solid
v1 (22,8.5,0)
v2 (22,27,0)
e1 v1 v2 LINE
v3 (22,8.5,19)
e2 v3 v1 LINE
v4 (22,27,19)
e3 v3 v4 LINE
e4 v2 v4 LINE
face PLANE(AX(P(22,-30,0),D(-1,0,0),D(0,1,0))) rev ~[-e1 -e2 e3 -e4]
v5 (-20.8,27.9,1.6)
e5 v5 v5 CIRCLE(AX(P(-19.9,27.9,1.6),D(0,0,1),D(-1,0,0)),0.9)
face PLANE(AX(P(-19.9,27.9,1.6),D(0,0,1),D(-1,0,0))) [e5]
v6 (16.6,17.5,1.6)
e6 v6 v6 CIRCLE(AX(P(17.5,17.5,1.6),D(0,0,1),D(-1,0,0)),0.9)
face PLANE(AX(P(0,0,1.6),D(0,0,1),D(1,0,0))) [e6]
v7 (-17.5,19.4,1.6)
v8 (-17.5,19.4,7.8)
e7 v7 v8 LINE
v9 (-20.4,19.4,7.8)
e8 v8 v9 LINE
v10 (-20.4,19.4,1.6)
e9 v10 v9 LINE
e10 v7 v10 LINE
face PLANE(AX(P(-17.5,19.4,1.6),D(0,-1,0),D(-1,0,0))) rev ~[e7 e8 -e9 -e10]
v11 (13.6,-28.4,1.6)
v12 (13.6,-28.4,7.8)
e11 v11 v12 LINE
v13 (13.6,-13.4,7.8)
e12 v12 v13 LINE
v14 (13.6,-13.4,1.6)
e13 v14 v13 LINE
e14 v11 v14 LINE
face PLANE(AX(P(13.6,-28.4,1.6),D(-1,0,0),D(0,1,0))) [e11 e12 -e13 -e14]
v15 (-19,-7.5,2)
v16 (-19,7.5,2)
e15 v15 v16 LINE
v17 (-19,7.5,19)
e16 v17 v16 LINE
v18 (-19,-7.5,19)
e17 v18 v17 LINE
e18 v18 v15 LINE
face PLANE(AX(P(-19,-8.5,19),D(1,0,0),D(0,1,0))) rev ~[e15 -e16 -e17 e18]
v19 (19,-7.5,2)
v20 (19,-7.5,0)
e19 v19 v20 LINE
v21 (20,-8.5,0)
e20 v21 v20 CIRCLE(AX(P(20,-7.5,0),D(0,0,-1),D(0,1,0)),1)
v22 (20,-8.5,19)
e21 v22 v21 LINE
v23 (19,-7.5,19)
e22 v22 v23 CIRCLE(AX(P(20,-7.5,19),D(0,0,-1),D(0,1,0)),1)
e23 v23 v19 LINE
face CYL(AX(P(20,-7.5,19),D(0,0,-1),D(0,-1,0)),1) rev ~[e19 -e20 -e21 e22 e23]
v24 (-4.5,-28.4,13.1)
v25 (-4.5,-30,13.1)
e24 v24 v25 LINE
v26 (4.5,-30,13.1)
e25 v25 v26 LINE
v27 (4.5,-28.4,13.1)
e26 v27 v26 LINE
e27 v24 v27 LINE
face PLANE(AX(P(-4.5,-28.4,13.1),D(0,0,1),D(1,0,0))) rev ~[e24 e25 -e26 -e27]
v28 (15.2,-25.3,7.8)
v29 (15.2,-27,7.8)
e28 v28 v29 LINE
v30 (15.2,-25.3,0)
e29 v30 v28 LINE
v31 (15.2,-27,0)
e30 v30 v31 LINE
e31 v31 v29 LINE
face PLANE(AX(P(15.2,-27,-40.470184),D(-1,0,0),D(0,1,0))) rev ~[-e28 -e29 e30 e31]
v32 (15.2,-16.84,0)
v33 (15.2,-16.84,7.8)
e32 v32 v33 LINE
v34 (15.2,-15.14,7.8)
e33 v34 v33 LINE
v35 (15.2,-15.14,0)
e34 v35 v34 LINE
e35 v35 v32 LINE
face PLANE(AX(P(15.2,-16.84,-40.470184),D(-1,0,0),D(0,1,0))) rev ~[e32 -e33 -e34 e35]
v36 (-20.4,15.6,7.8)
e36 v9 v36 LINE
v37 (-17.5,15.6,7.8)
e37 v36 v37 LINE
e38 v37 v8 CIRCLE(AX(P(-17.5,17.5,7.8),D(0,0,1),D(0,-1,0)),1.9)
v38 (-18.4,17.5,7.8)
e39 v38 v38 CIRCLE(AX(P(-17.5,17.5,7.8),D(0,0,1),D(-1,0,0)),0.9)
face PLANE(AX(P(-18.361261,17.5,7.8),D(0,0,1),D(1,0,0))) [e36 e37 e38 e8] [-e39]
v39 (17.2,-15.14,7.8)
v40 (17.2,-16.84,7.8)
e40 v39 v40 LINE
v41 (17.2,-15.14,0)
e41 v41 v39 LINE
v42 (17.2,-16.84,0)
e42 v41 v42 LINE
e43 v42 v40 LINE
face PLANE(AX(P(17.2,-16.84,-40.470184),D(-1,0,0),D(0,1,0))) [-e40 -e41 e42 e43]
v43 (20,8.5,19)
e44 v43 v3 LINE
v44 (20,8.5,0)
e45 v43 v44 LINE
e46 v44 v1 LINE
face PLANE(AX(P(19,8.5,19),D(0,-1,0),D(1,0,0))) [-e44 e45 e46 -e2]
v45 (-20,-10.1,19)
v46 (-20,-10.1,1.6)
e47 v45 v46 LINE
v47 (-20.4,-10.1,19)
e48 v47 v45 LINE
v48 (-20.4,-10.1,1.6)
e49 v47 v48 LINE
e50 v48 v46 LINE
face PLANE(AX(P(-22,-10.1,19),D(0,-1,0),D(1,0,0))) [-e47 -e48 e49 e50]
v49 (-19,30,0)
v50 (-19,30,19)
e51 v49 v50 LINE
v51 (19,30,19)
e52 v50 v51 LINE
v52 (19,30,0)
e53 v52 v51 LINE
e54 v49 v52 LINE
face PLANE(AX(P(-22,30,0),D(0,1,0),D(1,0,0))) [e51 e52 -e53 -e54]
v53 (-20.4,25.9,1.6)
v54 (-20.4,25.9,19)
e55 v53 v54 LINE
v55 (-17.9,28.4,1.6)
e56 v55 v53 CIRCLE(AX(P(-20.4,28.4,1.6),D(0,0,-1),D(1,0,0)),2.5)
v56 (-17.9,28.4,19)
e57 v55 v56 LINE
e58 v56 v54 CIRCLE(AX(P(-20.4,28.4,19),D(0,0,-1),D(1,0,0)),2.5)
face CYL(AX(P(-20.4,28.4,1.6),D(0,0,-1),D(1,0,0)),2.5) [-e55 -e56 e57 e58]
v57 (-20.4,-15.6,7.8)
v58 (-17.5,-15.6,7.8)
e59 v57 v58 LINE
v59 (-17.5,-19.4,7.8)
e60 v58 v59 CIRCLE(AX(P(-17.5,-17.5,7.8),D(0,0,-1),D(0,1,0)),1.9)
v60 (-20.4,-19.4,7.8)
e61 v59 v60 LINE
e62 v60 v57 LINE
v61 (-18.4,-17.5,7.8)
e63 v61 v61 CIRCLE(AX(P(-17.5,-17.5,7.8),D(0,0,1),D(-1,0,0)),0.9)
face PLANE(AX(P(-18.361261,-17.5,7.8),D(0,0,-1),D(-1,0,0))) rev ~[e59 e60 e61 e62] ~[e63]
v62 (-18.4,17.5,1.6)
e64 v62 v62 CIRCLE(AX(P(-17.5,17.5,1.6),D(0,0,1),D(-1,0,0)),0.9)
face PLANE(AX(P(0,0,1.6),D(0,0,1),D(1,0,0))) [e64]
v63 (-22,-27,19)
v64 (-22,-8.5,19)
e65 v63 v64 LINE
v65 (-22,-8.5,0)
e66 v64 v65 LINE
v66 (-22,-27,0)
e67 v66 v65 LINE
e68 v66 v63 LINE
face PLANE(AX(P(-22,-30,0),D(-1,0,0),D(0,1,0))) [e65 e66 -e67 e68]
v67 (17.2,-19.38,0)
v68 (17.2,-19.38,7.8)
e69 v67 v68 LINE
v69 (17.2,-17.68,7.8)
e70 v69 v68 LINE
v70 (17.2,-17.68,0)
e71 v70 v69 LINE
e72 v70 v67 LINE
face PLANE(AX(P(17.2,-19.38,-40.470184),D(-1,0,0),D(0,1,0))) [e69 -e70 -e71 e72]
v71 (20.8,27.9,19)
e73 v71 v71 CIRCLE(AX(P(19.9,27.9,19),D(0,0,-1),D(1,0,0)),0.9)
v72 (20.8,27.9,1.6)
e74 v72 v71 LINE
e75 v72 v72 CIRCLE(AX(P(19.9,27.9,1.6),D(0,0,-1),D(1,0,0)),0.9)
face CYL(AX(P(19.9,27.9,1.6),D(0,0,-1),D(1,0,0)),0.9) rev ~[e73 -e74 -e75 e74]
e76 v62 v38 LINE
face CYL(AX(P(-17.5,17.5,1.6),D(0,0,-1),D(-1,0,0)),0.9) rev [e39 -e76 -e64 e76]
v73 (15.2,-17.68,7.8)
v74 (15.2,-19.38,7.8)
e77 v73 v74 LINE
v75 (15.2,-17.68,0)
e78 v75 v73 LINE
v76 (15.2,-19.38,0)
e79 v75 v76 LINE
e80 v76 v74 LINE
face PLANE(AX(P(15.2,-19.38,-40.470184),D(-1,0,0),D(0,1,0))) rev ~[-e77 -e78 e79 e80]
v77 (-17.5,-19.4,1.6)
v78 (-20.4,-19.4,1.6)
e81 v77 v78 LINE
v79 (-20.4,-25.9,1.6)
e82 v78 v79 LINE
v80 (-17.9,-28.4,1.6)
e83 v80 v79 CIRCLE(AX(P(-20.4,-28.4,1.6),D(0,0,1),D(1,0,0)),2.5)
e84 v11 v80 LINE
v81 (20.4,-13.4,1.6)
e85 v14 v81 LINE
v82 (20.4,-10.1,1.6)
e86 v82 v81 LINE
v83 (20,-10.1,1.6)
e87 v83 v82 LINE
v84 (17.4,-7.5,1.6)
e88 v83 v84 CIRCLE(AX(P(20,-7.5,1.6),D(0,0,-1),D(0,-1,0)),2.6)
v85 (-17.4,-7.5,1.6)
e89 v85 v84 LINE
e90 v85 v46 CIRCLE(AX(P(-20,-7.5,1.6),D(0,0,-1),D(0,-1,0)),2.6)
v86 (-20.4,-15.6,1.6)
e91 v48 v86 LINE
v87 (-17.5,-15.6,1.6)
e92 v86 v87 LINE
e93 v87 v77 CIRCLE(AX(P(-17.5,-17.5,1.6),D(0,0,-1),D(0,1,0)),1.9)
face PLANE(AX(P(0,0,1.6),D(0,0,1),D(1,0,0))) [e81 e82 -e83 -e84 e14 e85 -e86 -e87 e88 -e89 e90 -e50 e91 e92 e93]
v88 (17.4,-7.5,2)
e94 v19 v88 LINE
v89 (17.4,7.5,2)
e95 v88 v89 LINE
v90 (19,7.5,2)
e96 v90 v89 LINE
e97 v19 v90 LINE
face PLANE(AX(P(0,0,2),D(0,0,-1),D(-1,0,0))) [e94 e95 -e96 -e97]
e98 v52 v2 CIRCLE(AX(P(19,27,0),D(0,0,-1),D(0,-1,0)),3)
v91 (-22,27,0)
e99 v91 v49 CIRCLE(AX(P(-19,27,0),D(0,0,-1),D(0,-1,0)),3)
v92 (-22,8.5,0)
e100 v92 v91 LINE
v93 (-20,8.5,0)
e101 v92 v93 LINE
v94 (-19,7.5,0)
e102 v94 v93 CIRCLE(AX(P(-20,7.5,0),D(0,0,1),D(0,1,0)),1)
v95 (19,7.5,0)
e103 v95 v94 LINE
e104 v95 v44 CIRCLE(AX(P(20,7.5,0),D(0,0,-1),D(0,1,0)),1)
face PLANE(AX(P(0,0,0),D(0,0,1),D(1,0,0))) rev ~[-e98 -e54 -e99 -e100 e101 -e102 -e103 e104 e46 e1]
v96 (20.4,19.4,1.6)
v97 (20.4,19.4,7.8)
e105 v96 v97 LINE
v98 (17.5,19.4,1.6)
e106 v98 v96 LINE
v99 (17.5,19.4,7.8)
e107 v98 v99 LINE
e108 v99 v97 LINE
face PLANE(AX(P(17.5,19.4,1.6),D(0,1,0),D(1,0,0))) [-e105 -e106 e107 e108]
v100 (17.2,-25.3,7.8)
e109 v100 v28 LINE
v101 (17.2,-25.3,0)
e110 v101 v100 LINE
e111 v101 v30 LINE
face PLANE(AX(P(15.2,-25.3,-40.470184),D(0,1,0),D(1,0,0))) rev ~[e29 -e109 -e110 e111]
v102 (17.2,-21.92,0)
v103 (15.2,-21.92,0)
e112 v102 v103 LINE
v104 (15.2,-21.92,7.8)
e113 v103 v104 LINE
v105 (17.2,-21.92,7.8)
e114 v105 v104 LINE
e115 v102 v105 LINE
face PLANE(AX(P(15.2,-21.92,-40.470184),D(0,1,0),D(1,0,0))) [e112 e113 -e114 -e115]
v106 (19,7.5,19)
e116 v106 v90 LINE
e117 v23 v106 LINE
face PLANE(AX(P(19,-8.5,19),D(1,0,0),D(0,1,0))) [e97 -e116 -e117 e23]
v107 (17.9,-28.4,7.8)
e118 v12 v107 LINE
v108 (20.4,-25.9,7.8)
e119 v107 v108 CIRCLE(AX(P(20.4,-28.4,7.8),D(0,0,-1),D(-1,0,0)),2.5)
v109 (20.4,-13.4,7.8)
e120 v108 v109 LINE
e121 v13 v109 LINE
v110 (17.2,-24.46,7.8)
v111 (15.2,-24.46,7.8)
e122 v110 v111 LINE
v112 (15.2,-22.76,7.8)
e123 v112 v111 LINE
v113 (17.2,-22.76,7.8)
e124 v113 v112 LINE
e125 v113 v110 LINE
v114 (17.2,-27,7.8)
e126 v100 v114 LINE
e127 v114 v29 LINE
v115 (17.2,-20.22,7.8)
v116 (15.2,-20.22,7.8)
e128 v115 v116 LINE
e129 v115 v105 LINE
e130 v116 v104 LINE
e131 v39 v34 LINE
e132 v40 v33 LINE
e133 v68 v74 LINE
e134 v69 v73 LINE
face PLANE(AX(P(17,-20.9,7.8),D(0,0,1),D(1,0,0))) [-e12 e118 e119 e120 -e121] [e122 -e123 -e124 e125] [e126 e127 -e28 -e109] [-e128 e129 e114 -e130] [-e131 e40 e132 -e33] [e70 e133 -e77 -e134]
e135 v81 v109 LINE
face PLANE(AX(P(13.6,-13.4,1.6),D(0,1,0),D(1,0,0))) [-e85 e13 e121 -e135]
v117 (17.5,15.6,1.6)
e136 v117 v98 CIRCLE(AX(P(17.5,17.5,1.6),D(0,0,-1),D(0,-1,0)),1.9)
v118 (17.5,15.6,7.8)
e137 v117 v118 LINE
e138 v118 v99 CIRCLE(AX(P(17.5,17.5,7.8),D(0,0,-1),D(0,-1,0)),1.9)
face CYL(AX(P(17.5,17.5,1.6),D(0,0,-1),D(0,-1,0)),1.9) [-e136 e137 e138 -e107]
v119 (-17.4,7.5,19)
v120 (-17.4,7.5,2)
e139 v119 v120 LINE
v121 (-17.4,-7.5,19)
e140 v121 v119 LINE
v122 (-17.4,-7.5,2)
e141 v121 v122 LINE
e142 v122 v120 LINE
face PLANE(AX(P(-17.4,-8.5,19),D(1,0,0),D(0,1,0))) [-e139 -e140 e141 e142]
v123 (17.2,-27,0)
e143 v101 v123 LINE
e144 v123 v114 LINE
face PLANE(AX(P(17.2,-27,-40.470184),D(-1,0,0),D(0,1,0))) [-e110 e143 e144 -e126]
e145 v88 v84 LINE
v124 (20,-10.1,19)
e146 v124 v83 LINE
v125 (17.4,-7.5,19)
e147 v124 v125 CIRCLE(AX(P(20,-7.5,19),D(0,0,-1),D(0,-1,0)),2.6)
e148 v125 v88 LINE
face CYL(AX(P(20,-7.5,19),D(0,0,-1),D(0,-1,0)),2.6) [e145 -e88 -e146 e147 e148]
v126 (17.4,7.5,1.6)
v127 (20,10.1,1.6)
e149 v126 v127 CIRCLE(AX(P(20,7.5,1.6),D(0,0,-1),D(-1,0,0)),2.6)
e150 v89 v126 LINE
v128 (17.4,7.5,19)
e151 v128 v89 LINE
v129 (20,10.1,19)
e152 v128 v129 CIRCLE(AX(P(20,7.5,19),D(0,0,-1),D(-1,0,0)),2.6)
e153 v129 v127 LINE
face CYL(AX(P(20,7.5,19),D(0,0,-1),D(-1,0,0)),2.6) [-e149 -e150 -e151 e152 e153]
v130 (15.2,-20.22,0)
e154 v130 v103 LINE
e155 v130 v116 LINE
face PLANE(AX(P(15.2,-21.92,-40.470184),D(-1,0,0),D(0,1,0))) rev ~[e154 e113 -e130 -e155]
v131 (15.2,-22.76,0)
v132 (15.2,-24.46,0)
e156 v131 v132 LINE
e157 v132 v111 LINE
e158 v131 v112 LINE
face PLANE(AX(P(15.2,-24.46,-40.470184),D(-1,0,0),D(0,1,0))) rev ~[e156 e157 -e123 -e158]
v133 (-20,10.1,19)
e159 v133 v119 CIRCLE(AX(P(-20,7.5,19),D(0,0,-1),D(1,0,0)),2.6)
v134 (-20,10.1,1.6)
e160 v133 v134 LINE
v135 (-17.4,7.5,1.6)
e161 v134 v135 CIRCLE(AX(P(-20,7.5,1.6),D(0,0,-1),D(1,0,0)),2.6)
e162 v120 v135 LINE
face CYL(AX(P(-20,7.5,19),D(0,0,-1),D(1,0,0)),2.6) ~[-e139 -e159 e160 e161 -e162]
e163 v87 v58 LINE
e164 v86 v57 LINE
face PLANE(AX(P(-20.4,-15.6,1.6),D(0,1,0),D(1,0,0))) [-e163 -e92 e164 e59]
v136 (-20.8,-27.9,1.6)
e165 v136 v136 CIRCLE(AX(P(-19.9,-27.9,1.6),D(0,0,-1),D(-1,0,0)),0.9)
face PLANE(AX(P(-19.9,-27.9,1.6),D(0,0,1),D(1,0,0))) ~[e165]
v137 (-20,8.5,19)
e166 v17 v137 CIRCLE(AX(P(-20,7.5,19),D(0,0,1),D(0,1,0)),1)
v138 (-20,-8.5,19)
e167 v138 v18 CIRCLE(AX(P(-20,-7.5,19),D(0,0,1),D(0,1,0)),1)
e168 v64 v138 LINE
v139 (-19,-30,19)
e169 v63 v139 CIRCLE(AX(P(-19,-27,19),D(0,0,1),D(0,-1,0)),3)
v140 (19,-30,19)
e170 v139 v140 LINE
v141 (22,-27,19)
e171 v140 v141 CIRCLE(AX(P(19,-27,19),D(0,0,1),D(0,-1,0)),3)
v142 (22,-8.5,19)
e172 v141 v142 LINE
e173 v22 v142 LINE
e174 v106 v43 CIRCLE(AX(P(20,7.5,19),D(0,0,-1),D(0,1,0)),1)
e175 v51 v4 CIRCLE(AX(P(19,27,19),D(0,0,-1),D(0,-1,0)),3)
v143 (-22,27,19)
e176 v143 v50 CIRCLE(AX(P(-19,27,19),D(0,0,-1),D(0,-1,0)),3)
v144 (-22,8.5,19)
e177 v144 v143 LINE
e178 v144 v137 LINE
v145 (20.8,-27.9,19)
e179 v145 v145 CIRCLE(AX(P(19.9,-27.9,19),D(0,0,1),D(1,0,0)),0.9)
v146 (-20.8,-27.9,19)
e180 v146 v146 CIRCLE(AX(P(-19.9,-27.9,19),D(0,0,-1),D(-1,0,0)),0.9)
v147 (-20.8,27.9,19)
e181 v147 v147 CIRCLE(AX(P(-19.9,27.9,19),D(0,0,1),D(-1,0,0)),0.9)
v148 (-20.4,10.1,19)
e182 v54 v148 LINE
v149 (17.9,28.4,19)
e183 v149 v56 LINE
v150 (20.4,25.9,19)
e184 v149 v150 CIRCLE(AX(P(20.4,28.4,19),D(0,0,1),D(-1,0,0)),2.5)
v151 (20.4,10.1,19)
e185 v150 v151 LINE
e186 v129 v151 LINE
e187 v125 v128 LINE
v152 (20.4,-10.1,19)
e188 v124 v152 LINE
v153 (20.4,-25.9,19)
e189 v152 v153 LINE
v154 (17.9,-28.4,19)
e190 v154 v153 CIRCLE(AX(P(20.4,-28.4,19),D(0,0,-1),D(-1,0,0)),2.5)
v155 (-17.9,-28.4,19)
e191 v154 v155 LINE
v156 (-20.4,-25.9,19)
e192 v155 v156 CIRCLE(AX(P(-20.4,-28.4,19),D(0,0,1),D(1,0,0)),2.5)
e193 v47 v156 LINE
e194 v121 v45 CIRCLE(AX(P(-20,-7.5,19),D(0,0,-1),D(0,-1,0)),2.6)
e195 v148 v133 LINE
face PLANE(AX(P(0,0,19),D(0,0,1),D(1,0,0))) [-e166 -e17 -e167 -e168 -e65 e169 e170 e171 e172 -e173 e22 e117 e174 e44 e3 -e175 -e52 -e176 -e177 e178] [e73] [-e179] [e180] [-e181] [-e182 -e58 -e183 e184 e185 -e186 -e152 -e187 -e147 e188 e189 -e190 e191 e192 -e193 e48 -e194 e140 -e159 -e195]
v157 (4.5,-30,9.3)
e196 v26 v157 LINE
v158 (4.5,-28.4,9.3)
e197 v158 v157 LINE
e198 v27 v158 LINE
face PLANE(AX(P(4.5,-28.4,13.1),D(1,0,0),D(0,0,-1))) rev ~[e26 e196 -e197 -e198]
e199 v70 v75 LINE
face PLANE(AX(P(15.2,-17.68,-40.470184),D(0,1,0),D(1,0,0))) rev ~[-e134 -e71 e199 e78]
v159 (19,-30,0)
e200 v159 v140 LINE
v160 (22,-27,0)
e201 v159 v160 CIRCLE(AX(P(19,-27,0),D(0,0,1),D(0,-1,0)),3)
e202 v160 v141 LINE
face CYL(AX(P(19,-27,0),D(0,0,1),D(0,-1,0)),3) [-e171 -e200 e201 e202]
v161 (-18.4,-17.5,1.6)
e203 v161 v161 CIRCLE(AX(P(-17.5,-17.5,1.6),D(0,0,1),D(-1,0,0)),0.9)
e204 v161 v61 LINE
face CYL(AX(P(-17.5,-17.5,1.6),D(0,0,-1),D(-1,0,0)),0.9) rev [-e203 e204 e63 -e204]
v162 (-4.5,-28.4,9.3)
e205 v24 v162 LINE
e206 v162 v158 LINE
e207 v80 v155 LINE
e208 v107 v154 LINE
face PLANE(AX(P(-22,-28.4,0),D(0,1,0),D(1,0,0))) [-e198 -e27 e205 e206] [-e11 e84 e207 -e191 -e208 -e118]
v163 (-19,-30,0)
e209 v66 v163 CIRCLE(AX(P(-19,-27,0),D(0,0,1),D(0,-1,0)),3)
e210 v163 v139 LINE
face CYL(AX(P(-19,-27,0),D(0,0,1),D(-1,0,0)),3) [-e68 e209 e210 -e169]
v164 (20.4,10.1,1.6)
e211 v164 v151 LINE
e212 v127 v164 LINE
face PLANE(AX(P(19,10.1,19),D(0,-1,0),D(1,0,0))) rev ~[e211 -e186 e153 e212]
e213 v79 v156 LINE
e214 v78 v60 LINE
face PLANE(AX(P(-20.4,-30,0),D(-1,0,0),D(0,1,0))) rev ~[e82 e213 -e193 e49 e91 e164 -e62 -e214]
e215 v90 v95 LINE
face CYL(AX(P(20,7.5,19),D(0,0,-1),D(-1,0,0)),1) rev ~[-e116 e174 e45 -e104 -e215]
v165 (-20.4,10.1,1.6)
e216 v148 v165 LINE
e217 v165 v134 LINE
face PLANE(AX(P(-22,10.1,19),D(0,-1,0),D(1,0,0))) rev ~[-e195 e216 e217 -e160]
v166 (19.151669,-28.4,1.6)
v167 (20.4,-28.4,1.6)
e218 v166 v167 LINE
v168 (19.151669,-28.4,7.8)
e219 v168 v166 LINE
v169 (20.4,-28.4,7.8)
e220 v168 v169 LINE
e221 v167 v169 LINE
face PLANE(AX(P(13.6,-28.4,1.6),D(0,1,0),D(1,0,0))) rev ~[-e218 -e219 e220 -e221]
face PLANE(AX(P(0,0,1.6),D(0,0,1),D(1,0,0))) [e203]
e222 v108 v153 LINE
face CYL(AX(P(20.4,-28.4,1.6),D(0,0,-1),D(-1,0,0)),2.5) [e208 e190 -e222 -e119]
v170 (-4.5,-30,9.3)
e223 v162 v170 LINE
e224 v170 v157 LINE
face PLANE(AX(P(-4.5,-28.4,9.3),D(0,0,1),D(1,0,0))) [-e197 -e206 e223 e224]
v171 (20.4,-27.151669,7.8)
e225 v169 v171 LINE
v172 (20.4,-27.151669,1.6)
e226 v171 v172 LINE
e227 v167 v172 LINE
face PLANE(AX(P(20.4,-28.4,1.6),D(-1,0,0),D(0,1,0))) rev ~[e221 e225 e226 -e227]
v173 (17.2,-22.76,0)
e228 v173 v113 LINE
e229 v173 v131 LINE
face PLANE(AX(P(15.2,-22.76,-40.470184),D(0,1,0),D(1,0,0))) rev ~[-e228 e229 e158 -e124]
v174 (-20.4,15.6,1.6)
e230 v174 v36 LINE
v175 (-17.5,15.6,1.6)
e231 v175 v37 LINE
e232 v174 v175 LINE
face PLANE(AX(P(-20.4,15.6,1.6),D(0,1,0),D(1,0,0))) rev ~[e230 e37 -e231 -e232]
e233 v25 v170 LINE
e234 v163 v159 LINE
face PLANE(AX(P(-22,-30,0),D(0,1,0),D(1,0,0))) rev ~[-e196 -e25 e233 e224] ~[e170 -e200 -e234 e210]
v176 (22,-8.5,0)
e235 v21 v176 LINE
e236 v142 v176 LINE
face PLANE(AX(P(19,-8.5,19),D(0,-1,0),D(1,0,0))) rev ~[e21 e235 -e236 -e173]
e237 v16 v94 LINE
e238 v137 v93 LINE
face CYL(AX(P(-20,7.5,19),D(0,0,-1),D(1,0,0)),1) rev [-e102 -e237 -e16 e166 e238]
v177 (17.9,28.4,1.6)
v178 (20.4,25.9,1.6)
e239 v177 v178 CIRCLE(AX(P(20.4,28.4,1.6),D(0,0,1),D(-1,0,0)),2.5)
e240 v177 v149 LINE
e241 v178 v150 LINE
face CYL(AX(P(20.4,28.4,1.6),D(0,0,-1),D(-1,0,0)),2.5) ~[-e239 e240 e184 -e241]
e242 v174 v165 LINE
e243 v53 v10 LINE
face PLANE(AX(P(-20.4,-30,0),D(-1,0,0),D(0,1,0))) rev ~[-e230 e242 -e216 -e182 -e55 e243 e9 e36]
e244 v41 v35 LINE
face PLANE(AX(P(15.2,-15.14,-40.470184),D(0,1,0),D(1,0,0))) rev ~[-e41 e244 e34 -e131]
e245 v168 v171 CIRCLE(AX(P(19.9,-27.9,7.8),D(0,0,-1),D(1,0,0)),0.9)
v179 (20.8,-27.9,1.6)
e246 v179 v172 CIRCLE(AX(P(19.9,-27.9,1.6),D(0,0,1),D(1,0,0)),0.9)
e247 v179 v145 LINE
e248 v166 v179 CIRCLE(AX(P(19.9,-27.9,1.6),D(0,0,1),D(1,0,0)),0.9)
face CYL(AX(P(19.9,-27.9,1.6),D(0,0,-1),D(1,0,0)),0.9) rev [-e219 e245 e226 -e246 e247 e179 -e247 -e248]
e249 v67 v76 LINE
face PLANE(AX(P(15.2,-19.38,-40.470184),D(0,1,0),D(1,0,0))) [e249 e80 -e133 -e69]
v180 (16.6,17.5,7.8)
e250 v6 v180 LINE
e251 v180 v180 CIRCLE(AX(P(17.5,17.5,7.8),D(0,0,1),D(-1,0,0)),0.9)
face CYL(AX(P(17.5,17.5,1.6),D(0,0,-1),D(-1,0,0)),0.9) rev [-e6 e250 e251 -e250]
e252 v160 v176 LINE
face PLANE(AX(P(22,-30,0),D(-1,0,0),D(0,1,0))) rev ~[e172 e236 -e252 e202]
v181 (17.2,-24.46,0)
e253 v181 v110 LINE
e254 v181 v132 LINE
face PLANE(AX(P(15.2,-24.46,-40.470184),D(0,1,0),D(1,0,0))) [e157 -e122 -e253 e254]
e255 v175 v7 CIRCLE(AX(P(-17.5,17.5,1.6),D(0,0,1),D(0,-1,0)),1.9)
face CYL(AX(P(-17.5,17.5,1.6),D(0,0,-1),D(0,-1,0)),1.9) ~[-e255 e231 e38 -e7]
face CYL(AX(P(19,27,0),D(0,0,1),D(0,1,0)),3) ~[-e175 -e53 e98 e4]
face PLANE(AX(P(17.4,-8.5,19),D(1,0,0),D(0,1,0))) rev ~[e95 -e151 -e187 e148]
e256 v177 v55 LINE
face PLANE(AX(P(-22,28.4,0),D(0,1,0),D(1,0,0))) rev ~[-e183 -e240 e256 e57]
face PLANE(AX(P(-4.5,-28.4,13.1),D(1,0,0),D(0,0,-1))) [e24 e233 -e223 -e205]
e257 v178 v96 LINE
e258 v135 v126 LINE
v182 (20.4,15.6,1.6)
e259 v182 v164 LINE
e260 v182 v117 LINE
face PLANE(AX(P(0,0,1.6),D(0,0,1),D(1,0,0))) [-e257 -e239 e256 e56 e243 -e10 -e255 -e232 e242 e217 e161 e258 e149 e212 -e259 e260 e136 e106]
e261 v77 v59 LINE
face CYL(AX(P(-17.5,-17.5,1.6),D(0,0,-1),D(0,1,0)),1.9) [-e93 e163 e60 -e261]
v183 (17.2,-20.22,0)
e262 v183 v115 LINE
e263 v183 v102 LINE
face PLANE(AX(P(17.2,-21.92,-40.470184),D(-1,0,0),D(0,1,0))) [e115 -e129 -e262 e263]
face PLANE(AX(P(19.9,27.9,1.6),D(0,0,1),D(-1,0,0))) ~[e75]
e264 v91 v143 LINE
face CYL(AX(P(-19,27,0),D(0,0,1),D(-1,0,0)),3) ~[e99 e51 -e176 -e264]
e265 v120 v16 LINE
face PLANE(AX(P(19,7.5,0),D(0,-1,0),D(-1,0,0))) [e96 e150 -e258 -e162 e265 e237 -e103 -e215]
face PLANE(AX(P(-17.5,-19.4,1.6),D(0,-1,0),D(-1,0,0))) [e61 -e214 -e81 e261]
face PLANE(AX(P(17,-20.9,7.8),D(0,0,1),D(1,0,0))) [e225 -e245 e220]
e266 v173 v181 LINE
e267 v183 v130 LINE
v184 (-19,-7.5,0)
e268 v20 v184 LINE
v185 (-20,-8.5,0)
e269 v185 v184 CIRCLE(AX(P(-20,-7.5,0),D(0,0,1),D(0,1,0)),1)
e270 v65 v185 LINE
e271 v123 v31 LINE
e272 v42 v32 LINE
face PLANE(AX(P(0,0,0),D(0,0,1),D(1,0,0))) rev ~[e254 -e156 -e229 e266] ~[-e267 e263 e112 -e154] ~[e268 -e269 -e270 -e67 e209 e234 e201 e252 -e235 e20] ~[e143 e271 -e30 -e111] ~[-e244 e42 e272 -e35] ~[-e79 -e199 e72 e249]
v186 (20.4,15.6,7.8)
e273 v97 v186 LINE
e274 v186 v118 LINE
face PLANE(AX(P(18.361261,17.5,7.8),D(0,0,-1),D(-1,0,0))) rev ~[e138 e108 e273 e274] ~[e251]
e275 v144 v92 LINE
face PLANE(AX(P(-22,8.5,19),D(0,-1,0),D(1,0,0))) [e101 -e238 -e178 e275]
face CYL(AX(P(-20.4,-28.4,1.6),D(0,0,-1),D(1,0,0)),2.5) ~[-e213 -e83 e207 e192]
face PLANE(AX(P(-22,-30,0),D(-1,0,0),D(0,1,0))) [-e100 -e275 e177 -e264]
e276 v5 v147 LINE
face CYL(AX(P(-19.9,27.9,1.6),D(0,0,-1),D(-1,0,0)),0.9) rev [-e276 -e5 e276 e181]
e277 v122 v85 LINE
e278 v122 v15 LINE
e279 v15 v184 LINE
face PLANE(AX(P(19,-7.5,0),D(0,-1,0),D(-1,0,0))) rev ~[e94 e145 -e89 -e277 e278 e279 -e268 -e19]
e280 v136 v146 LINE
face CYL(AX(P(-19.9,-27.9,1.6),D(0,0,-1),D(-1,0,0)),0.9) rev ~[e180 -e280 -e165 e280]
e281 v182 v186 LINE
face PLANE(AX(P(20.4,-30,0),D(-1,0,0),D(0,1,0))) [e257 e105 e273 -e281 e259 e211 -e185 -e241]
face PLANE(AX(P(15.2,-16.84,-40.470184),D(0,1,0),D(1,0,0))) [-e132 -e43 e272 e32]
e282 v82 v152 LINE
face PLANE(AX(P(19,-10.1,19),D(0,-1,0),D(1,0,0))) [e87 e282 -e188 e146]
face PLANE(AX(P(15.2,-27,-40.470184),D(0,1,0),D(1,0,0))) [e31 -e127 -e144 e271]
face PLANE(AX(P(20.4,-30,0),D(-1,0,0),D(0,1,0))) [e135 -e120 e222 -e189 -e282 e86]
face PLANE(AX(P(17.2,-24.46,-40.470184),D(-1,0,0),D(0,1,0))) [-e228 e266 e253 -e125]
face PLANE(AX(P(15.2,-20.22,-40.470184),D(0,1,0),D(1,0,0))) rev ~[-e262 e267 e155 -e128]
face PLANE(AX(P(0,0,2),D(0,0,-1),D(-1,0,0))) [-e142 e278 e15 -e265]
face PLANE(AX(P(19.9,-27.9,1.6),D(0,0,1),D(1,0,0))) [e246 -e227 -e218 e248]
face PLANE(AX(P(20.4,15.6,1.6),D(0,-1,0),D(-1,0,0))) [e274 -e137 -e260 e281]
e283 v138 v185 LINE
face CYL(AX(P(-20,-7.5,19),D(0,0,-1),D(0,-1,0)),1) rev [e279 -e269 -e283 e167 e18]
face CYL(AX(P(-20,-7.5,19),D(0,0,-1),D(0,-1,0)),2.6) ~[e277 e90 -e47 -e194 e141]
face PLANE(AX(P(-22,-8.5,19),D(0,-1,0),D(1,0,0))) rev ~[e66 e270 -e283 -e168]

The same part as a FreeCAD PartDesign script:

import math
import FreeCAD as App
import Part
import Sketcher

V = App.Vector
Q = App.Units.Quantity


def edges_at(feature, points):
    """Names of the edges that pass closest to the given points."""
    edges = feature.Shape.Edges
    near = lambda p: min(range(len(edges)), key=lambda i: edges[i].distToShape(Part.Vertex(*p))[0])
    return sorted({f"Edge{near(p) + 1}" for p in points})


def faces_at(feature, points):
    """Names of the faces that lie closest to the given points."""
    faces = feature.Shape.Faces
    near = lambda p: min(range(len(faces)), key=lambda i: faces[i].distToShape(Part.Vertex(*p))[0])
    return sorted({f"Face{near(p) + 1}" for p in points})

doc = App.newDocument("Part")
body = doc.addObject("PartDesign::Body", "Body")

sketch1 = body.newObject("Sketcher::SketchObject", "Sketch")
sketch1.AttachmentSupport = (doc.getObject("XY_Plane"), [""])
sketch1.MapMode = "FlatFace"
sketch1.addGeometry(Part.LineSegment(V(-22, 30, 0), V(-22, -30, 0)), False)
sketch1.addGeometry(Part.LineSegment(V(-22, -30, 0), V(22, -30, 0)), False)
sketch1.addGeometry(Part.LineSegment(V(22, -30, 0), V(22, 30, 0)), False)
sketch1.addGeometry(Part.LineSegment(V(22, 30, 0), V(-22, 30, 0)), False)
sketch1.addConstraint(Sketcher.Constraint("Coincident", 0, 2, 1, 1))
sketch1.addConstraint(Sketcher.Constraint("Coincident", 1, 2, 2, 1))
sketch1.addConstraint(Sketcher.Constraint("Coincident", 2, 2, 3, 1))
sketch1.addConstraint(Sketcher.Constraint("Coincident", 3, 2, 0, 1))
sketch1.addConstraint(Sketcher.Constraint("Vertical", 0))
sketch1.addConstraint(Sketcher.Constraint("Horizontal", 1))
sketch1.addConstraint(Sketcher.Constraint("Vertical", 2))
sketch1.addConstraint(Sketcher.Constraint("Horizontal", 3))
sketch1.addConstraint(Sketcher.Constraint("Symmetric", 0, 2, 2, 2, -1, 1))
sketch1.addConstraint(Sketcher.Constraint("DistanceX", 1, 1, 1, 2, Q("44 mm")))
sketch1.addConstraint(Sketcher.Constraint("DistanceY", 0, 2, 0, 1, Q("60 mm")))
pad1 = body.newObject("PartDesign::Pad", "Pad")
pad1.Profile = sketch1
pad1.Length = 19

sketch2 = body.newObject("Sketcher::SketchObject", "Sketch001")
sketch2.AttachmentSupport = (doc.getObject("XY_Plane"), [""])
sketch2.MapMode = "FlatFace"
sketch2.AttachmentOffset = App.Placement(V(0, 0, 19), App.Rotation())
sketch2.addGeometry(Part.LineSegment(V(-22, 8.5, 0), V(-22, -8.5, 0)), False)
sketch2.addGeometry(Part.LineSegment(V(-22, -8.5, 0), V(-19, -8.5, 0)), False)
sketch2.addGeometry(Part.LineSegment(V(-19, -8.5, 0), V(-19, 8.5, 0)), False)
sketch2.addGeometry(Part.LineSegment(V(-19, 8.5, 0), V(-22, 8.5, 0)), False)
sketch2.addGeometry(Part.LineSegment(V(19, 8.5, 0), V(19, -8.5, 0)), False)
sketch2.addGeometry(Part.LineSegment(V(19, -8.5, 0), V(22, -8.5, 0)), False)
sketch2.addGeometry(Part.LineSegment(V(22, -8.5, 0), V(22, 8.5, 0)), False)
sketch2.addGeometry(Part.LineSegment(V(22, 8.5, 0), V(19, 8.5, 0)), False)
sketch2.addConstraint(Sketcher.Constraint("Coincident", 0, 2, 1, 1))
sketch2.addConstraint(Sketcher.Constraint("Coincident", 1, 2, 2, 1))
sketch2.addConstraint(Sketcher.Constraint("Coincident", 2, 2, 3, 1))
sketch2.addConstraint(Sketcher.Constraint("Coincident", 3, 2, 0, 1))
sketch2.addConstraint(Sketcher.Constraint("Coincident", 4, 2, 5, 1))
sketch2.addConstraint(Sketcher.Constraint("Coincident", 5, 2, 6, 1))
sketch2.addConstraint(Sketcher.Constraint("Coincident", 6, 2, 7, 1))
sketch2.addConstraint(Sketcher.Constraint("Coincident", 7, 2, 4, 1))
sketch2.addConstraint(Sketcher.Constraint("Vertical", 0))
sketch2.addConstraint(Sketcher.Constraint("Horizontal", 1))
sketch2.addConstraint(Sketcher.Constraint("Vertical", 2))
sketch2.addConstraint(Sketcher.Constraint("Horizontal", 3))
sketch2.addConstraint(Sketcher.Constraint("Vertical", 4))
sketch2.addConstraint(Sketcher.Constraint("Horizontal", 5))
sketch2.addConstraint(Sketcher.Constraint("Vertical", 6))
sketch2.addConstraint(Sketcher.Constraint("Horizontal", 7))
sketch2.addConstraint(Sketcher.Constraint("Symmetric", 2, 2, 4, 2, -1, 1))
sketch2.addConstraint(Sketcher.Constraint("Symmetric", 0, 2, 6, 2, -1, 1))
sketch2.addConstraint(Sketcher.Constraint("Horizontal", 1, 2, 4, 2))
sketch2.addConstraint(Sketcher.Constraint("DistanceX", 1, 1, 1, 2, Q("3 mm")))
sketch2.addConstraint(Sketcher.Constraint("DistanceY", 0, 2, 0, 1, Q("17 mm")))
sketch2.addConstraint(Sketcher.Constraint("DistanceX", 0, 2, -1, 1, Q("22 mm")))
pocket1 = body.newObject("PartDesign::Pocket", "Pocket")
pocket1.Profile = sketch2
pocket1.Type = "ThroughAll"
doc.recompute()

fillet = body.newObject("PartDesign::Fillet", "Fillet")
fillet.Base = (pocket1, edges_at(pocket1, [
    (22, -30, 9.5),
    (-22, -30, 9.5),
    (-22, 30, 9.5),
    (22, 30, 9.5),
]))
fillet.Radius = 3
doc.recompute()

fillet2 = body.newObject("PartDesign::Fillet", "Fillet001")
fillet2.Base = (fillet, edges_at(fillet, [
    (-19, 8.5, 9.5),
    (-19, -8.5, 9.5),
    (19, -8.5, 9.5),
    (19, 8.5, 9.5),
]))
fillet2.Radius = 1
doc.recompute()

thickness = body.newObject("PartDesign::Thickness", "Thickness")
thickness.Base = (fillet2, faces_at(fillet2, [(0, 0, 19)]))
thickness.Value = 1.6
thickness.Reversed = True
thickness.Join = "Intersection"

sketch3 = body.newObject("Sketcher::SketchObject", "Sketch002")
sketch3.AttachmentSupport = (doc.getObject("XY_Plane"), [""])
sketch3.MapMode = "FlatFace"
sketch3.AttachmentOffset = App.Placement(V(0, 0, 1.6), App.Rotation())
sketch3.addGeometry(Part.LineSegment(V(-17.9, 28.4, 0), V(-20.4, 28.4, 0)), False)
sketch3.addGeometry(Part.LineSegment(V(-20.4, 28.4, 0), V(-20.4, 25.9, 0)), False)
sketch3.addGeometry(Part.ArcOfCircle(Part.Circle(V(-20.4, 28.4, 0), V(0, 0, 1), 2.5), math.radians(-90), math.radians(0)), False)
sketch3.addConstraint(Sketcher.Constraint("Coincident", 0, 2, 1, 1))
sketch3.addConstraint(Sketcher.Constraint("Coincident", 1, 2, 2, 1))
sketch3.addConstraint(Sketcher.Constraint("Coincident", 2, 2, 0, 1))
sketch3.addConstraint(Sketcher.Constraint("Horizontal", 0))
sketch3.addConstraint(Sketcher.Constraint("Vertical", 1))
sketch3.addConstraint(Sketcher.Constraint("Coincident", 0, 2, 2, 3))
sketch3.addConstraint(Sketcher.Constraint("Radius", 2, Q("2.5 mm")))
sketch3.addConstraint(Sketcher.Constraint("DistanceX", 2, 3, -1, 1, Q("20.4 mm")))
sketch3.addConstraint(Sketcher.Constraint("DistanceY", -1, 1, 2, 3, Q("28.4 mm")))
pad2 = body.newObject("PartDesign::Pad", "Pad001")
pad2.Profile = sketch3
pad2.Length = 17.4

sketch4 = body.newObject("Sketcher::SketchObject", "Sketch003")
sketch4.AttachmentSupport = (doc.getObject("XY_Plane"), [""])
sketch4.MapMode = "FlatFace"
sketch4.AttachmentOffset = App.Placement(V(0, 0, 1.6), App.Rotation())
sketch4.addGeometry(Part.Circle(V(-19.9, 27.9, 0), V(0, 0, 1), 0.9), False)
sketch4.addConstraint(Sketcher.Constraint("Diameter", 0, Q("1.8 mm")))
sketch4.addConstraint(Sketcher.Constraint("DistanceX", 0, 3, -1, 1, Q("19.9 mm")))
sketch4.addConstraint(Sketcher.Constraint("DistanceY", -1, 1, 0, 3, Q("27.9 mm")))
pocket2 = body.newObject("PartDesign::Pocket", "Pocket001")
pocket2.Profile = sketch4
pocket2.Length = 17.4
pocket2.Reversed = True
doc.recompute()

mirrored = body.newObject("PartDesign::Mirrored", "Mirrored")
mirrored.Originals = [pad2, pocket2]
mirrored.MirrorPlane = (doc.getObject("YZ_Plane"), [""])
body.Tip = mirrored
doc.recompute()

mirrored2 = body.newObject("PartDesign::Mirrored", "Mirrored001")
mirrored2.Originals = [pad2, pocket2]
mirrored2.MirrorPlane = (doc.getObject("XZ_Plane"), [""])
body.Tip = mirrored2

sketch5 = body.newObject("Sketcher::SketchObject", "Sketch004")
sketch5.AttachmentSupport = (doc.getObject("XY_Plane"), [""])
sketch5.MapMode = "FlatFace"
sketch5.AttachmentOffset = App.Placement(V(0, 0, 1.6), App.Rotation())
sketch5.addGeometry(Part.LineSegment(V(17.9, -28.4, 0), V(20.4, -28.4, 0)), False)
sketch5.addGeometry(Part.LineSegment(V(20.4, -28.4, 0), V(20.4, -25.9, 0)), False)
sketch5.addGeometry(Part.ArcOfCircle(Part.Circle(V(20.4, -28.4, 0), V(0, 0, 1), 2.5), math.radians(90), math.radians(180)), False)
sketch5.addConstraint(Sketcher.Constraint("Coincident", 0, 2, 1, 1))
sketch5.addConstraint(Sketcher.Constraint("Coincident", 1, 2, 2, 1))
sketch5.addConstraint(Sketcher.Constraint("Coincident", 2, 2, 0, 1))
sketch5.addConstraint(Sketcher.Constraint("Horizontal", 0))
sketch5.addConstraint(Sketcher.Constraint("Vertical", 1))
sketch5.addConstraint(Sketcher.Constraint("Coincident", 0, 2, 2, 3))
sketch5.addConstraint(Sketcher.Constraint("Radius", 2, Q("2.5 mm")))
sketch5.addConstraint(Sketcher.Constraint("DistanceX", -1, 1, 2, 3, Q("20.4 mm")))
sketch5.addConstraint(Sketcher.Constraint("DistanceY", 2, 3, -1, 1, Q("28.4 mm")))
pad3 = body.newObject("PartDesign::Pad", "Pad002")
pad3.Profile = sketch5
pad3.Length = 17.4

sketch6 = body.newObject("Sketcher::SketchObject", "Sketch005")
sketch6.AttachmentSupport = (doc.getObject("XY_Plane"), [""])
sketch6.MapMode = "FlatFace"
sketch6.AttachmentOffset = App.Placement(V(0, 0, 1.6), App.Rotation())
sketch6.addGeometry(Part.Circle(V(19.9, -27.9, 0), V(0, 0, 1), 0.9), False)
sketch6.addConstraint(Sketcher.Constraint("Diameter", 0, Q("1.8 mm")))
sketch6.addConstraint(Sketcher.Constraint("DistanceX", -1, 1, 0, 3, Q("19.9 mm")))
sketch6.addConstraint(Sketcher.Constraint("DistanceY", 0, 3, -1, 1, Q("27.9 mm")))
pocket3 = body.newObject("PartDesign::Pocket", "Pocket002")
pocket3.Profile = sketch6
pocket3.Length = 17.4
pocket3.Reversed = True

sketch7 = body.newObject("Sketcher::SketchObject", "Sketch006")
sketch7.AttachmentSupport = (doc.getObject("XY_Plane"), [""])
sketch7.MapMode = "FlatFace"
sketch7.AttachmentOffset = App.Placement(V(0, 0, 1.6), App.Rotation())
sketch7.addGeometry(Part.LineSegment(V(13.6, -13.4, 0), V(13.6, -28.4, 0)), False)
sketch7.addGeometry(Part.LineSegment(V(13.6, -28.4, 0), V(20.4, -28.4, 0)), False)
sketch7.addGeometry(Part.LineSegment(V(20.4, -28.4, 0), V(20.4, -13.4, 0)), False)
sketch7.addGeometry(Part.LineSegment(V(20.4, -13.4, 0), V(13.6, -13.4, 0)), False)
sketch7.addConstraint(Sketcher.Constraint("Coincident", 0, 2, 1, 1))
sketch7.addConstraint(Sketcher.Constraint("Coincident", 1, 2, 2, 1))
sketch7.addConstraint(Sketcher.Constraint("Coincident", 2, 2, 3, 1))
sketch7.addConstraint(Sketcher.Constraint("Coincident", 3, 2, 0, 1))
sketch7.addConstraint(Sketcher.Constraint("Vertical", 0))
sketch7.addConstraint(Sketcher.Constraint("Horizontal", 1))
sketch7.addConstraint(Sketcher.Constraint("Vertical", 2))
sketch7.addConstraint(Sketcher.Constraint("Horizontal", 3))
sketch7.addConstraint(Sketcher.Constraint("DistanceY", 0, 2, 0, 1, Q("15 mm")))
sketch7.addConstraint(Sketcher.Constraint("DistanceX", 1, 1, 1, 2, Q("6.8 mm")))
sketch7.addConstraint(Sketcher.Constraint("DistanceX", -1, 1, 0, 2, Q("13.6 mm")))
sketch7.addConstraint(Sketcher.Constraint("DistanceY", 0, 2, -1, 1, Q("28.4 mm")))
pad4 = body.newObject("PartDesign::Pad", "Pad003")
pad4.Profile = sketch7
pad4.Length = 6.2

sketch8 = body.newObject("Sketcher::SketchObject", "Sketch007")
sketch8.AttachmentSupport = (doc.getObject("XY_Plane"), [""])
sketch8.MapMode = "FlatFace"
sketch8.AttachmentOffset = App.Placement(V(0, 0, 1.6), App.Rotation())
sketch8.addGeometry(Part.LineSegment(V(15.2, -25.3, 0), V(15.2, -27, 0)), False)
sketch8.addGeometry(Part.LineSegment(V(15.2, -27, 0), V(17.2, -27, 0)), False)
sketch8.addGeometry(Part.LineSegment(V(17.2, -27, 0), V(17.2, -25.3, 0)), False)
sketch8.addGeometry(Part.LineSegment(V(17.2, -25.3, 0), V(15.2, -25.3, 0)), False)
sketch8.addGeometry(Part.LineSegment(V(15.2, -22.76, 0), V(15.2, -24.46, 0)), False)
sketch8.addGeometry(Part.LineSegment(V(15.2, -24.46, 0), V(17.2, -24.46, 0)), False)
sketch8.addGeometry(Part.LineSegment(V(17.2, -24.46, 0), V(17.2, -22.76, 0)), False)
sketch8.addGeometry(Part.LineSegment(V(17.2, -22.76, 0), V(15.2, -22.76, 0)), False)
sketch8.addGeometry(Part.LineSegment(V(15.2, -20.22, 0), V(15.2, -21.92, 0)), False)
sketch8.addGeometry(Part.LineSegment(V(15.2, -21.92, 0), V(17.2, -21.92, 0)), False)
sketch8.addGeometry(Part.LineSegment(V(17.2, -21.92, 0), V(17.2, -20.22, 0)), False)
sketch8.addGeometry(Part.LineSegment(V(17.2, -20.22, 0), V(15.2, -20.22, 0)), False)
sketch8.addGeometry(Part.LineSegment(V(15.2, -17.68, 0), V(15.2, -19.38, 0)), False)
sketch8.addGeometry(Part.LineSegment(V(15.2, -19.38, 0), V(17.2, -19.38, 0)), False)
sketch8.addGeometry(Part.LineSegment(V(17.2, -19.38, 0), V(17.2, -17.68, 0)), False)
sketch8.addGeometry(Part.LineSegment(V(17.2, -17.68, 0), V(15.2, -17.68, 0)), False)
sketch8.addGeometry(Part.LineSegment(V(15.2, -15.14, 0), V(15.2, -16.84, 0)), False)
sketch8.addGeometry(Part.LineSegment(V(15.2, -16.84, 0), V(17.2, -16.84, 0)), False)
sketch8.addGeometry(Part.LineSegment(V(17.2, -16.84, 0), V(17.2, -15.14, 0)), False)
sketch8.addGeometry(Part.LineSegment(V(17.2, -15.14, 0), V(15.2, -15.14, 0)), False)
sketch8.addConstraint(Sketcher.Constraint("Coincident", 0, 2, 1, 1))
sketch8.addConstraint(Sketcher.Constraint("Coincident", 1, 2, 2, 1))
sketch8.addConstraint(Sketcher.Constraint("Coincident", 2, 2, 3, 1))
sketch8.addConstraint(Sketcher.Constraint("Coincident", 3, 2, 0, 1))
sketch8.addConstraint(Sketcher.Constraint("Coincident", 4, 2, 5, 1))
sketch8.addConstraint(Sketcher.Constraint("Coincident", 5, 2, 6, 1))
sketch8.addConstraint(Sketcher.Constraint("Coincident", 6, 2, 7, 1))
sketch8.addConstraint(Sketcher.Constraint("Coincident", 7, 2, 4, 1))
sketch8.addConstraint(Sketcher.Constraint("Coincident", 8, 2, 9, 1))
sketch8.addConstraint(Sketcher.Constraint("Coincident", 9, 2, 10, 1))
sketch8.addConstraint(Sketcher.Constraint("Coincident", 10, 2, 11, 1))
sketch8.addConstraint(Sketcher.Constraint("Coincident", 11, 2, 8, 1))
sketch8.addConstraint(Sketcher.Constraint("Coincident", 12, 2, 13, 1))
sketch8.addConstraint(Sketcher.Constraint("Coincident", 13, 2, 14, 1))
sketch8.addConstraint(Sketcher.Constraint("Coincident", 14, 2, 15, 1))
sketch8.addConstraint(Sketcher.Constraint("Coincident", 15, 2, 12, 1))
sketch8.addConstraint(Sketcher.Constraint("Coincident", 16, 2, 17, 1))
sketch8.addConstraint(Sketcher.Constraint("Coincident", 17, 2, 18, 1))
sketch8.addConstraint(Sketcher.Constraint("Coincident", 18, 2, 19, 1))
sketch8.addConstraint(Sketcher.Constraint("Coincident", 19, 2, 16, 1))
sketch8.addConstraint(Sketcher.Constraint("Vertical", 0))
sketch8.addConstraint(Sketcher.Constraint("Horizontal", 1))
sketch8.addConstraint(Sketcher.Constraint("Vertical", 2))
sketch8.addConstraint(Sketcher.Constraint("Horizontal", 3))
sketch8.addConstraint(Sketcher.Constraint("Vertical", 4))
sketch8.addConstraint(Sketcher.Constraint("Horizontal", 5))
sketch8.addConstraint(Sketcher.Constraint("Vertical", 6))
sketch8.addConstraint(Sketcher.Constraint("Horizontal", 7))
sketch8.addConstraint(Sketcher.Constraint("Vertical", 8))
sketch8.addConstraint(Sketcher.Constraint("Horizontal", 9))
sketch8.addConstraint(Sketcher.Constraint("Vertical", 10))
sketch8.addConstraint(Sketcher.Constraint("Horizontal", 11))
sketch8.addConstraint(Sketcher.Constraint("Vertical", 12))
sketch8.addConstraint(Sketcher.Constraint("Horizontal", 13))
sketch8.addConstraint(Sketcher.Constraint("Vertical", 14))
sketch8.addConstraint(Sketcher.Constraint("Horizontal", 15))
sketch8.addConstraint(Sketcher.Constraint("Vertical", 16))
sketch8.addConstraint(Sketcher.Constraint("Horizontal", 17))
sketch8.addConstraint(Sketcher.Constraint("Vertical", 18))
sketch8.addConstraint(Sketcher.Constraint("Horizontal", 19))
sketch8.addConstraint(Sketcher.Constraint("Vertical", 3, 2, 4, 2))
sketch8.addConstraint(Sketcher.Constraint("Vertical", 2, 2, 5, 2))
sketch8.addConstraint(Sketcher.Constraint("Vertical", 7, 2, 8, 2))
sketch8.addConstraint(Sketcher.Constraint("Vertical", 6, 2, 9, 2))
sketch8.addConstraint(Sketcher.Constraint("Vertical", 11, 2, 12, 2))
sketch8.addConstraint(Sketcher.Constraint("Vertical", 10, 2, 13, 2))
sketch8.addConstraint(Sketcher.Constraint("Vertical", 15, 2, 16, 2))
sketch8.addConstraint(Sketcher.Constraint("Vertical", 14, 2, 17, 2))
sketch8.addConstraint(Sketcher.Constraint("Equal", 2, 4))
sketch8.addConstraint(Sketcher.Constraint("Equal", 6, 8))
sketch8.addConstraint(Sketcher.Constraint("Equal", 10, 12))
sketch8.addConstraint(Sketcher.Constraint("Equal", 14, 16))
sketch8.addConstraint(Sketcher.Constraint("DistanceX", 1, 1, 1, 2, Q("2 mm")))
sketch8.addConstraint(Sketcher.Constraint("DistanceY", 0, 2, 0, 1, Q("1.7 mm")))
sketch8.addConstraint(Sketcher.Constraint("DistanceY", 0, 2, -1, 1, Q("27 mm")))
sketch8.addConstraint(Sketcher.Constraint("DistanceX", -1, 1, 0, 2, Q("15.2 mm")))
sketch8.addConstraint(Sketcher.Constraint("DistanceY", 4, 2, -1, 1, Q("24.46 mm")))
sketch8.addConstraint(Sketcher.Constraint("DistanceY", 8, 2, -1, 1, Q("21.92 mm")))
sketch8.addConstraint(Sketcher.Constraint("DistanceY", 12, 2, -1, 1, Q("19.38 mm")))
sketch8.addConstraint(Sketcher.Constraint("DistanceY", 16, 2, -1, 1, Q("16.84 mm")))
pocket4 = body.newObject("PartDesign::Pocket", "Pocket003")
pocket4.Profile = sketch8
pocket4.Type = "ThroughAll"
pocket4.Midplane = True

sketch9 = body.newObject("Sketcher::SketchObject", "Sketch008")
sketch9.AttachmentSupport = (doc.getObject("XY_Plane"), [""])
sketch9.MapMode = "FlatFace"
sketch9.AttachmentOffset = App.Placement(V(0, 0, 1.6), App.Rotation())
sketch9.addGeometry(Part.LineSegment(V(-17.5, 19.4, 0), V(-20.4, 19.4, 0)), False)
sketch9.addGeometry(Part.LineSegment(V(-20.4, 19.4, 0), V(-20.4, 15.6, 0)), False)
sketch9.addGeometry(Part.LineSegment(V(-20.4, 15.6, 0), V(-17.5, 15.6, 0)), False)
sketch9.addGeometry(Part.ArcOfCircle(Part.Circle(V(-17.5, 17.5, 0), V(0, 0, 1), 1.9), math.radians(-90), math.radians(90)), False)
sketch9.addGeometry(Part.Circle(V(-17.5, 17.5, 0), V(0, 0, 1), 0.9), False)
sketch9.addGeometry(Part.LineSegment(V(17.5, 15.6, 0), V(20.4, 15.6, 0)), False)
sketch9.addGeometry(Part.LineSegment(V(20.4, 15.6, 0), V(20.4, 19.4, 0)), False)
sketch9.addGeometry(Part.LineSegment(V(20.4, 19.4, 0), V(17.5, 19.4, 0)), False)
sketch9.addGeometry(Part.ArcOfCircle(Part.Circle(V(17.5, 17.5, 0), V(0, 0, 1), 1.9), math.radians(90), math.radians(270)), False)
sketch9.addGeometry(Part.Circle(V(17.5, 17.5, 0), V(0, 0, 1), 0.9), False)
sketch9.addGeometry(Part.LineSegment(V(-17.5, -15.6, 0), V(-20.4, -15.6, 0)), False)
sketch9.addGeometry(Part.LineSegment(V(-20.4, -15.6, 0), V(-20.4, -19.4, 0)), False)
sketch9.addGeometry(Part.LineSegment(V(-20.4, -19.4, 0), V(-17.5, -19.4, 0)), False)
sketch9.addGeometry(Part.ArcOfCircle(Part.Circle(V(-17.5, -17.5, 0), V(0, 0, 1), 1.9), math.radians(-90), math.radians(90)), False)
sketch9.addGeometry(Part.Circle(V(-17.5, -17.5, 0), V(0, 0, 1), 0.9), False)
sketch9.addConstraint(Sketcher.Constraint("Coincident", 0, 2, 1, 1))
sketch9.addConstraint(Sketcher.Constraint("Coincident", 1, 2, 2, 1))
sketch9.addConstraint(Sketcher.Constraint("Tangent", 2, 2, 3, 1))
sketch9.addConstraint(Sketcher.Constraint("Tangent", 3, 2, 0, 1))
sketch9.addConstraint(Sketcher.Constraint("Coincident", 5, 2, 6, 1))
sketch9.addConstraint(Sketcher.Constraint("Coincident", 6, 2, 7, 1))
sketch9.addConstraint(Sketcher.Constraint("Tangent", 7, 2, 8, 1))
sketch9.addConstraint(Sketcher.Constraint("Tangent", 8, 2, 5, 1))
sketch9.addConstraint(Sketcher.Constraint("Coincident", 10, 2, 11, 1))
sketch9.addConstraint(Sketcher.Constraint("Coincident", 11, 2, 12, 1))
sketch9.addConstraint(Sketcher.Constraint("Tangent", 12, 2, 13, 1))
sketch9.addConstraint(Sketcher.Constraint("Tangent", 13, 2, 10, 1))
sketch9.addConstraint(Sketcher.Constraint("Horizontal", 0))
sketch9.addConstraint(Sketcher.Constraint("Vertical", 1))
sketch9.addConstraint(Sketcher.Constraint("Horizontal", 2))
sketch9.addConstraint(Sketcher.Constraint("Horizontal", 5))
sketch9.addConstraint(Sketcher.Constraint("Vertical", 6))
sketch9.addConstraint(Sketcher.Constraint("Horizontal", 7))
sketch9.addConstraint(Sketcher.Constraint("Horizontal", 10))
sketch9.addConstraint(Sketcher.Constraint("Vertical", 11))
sketch9.addConstraint(Sketcher.Constraint("Horizontal", 12))
sketch9.addConstraint(Sketcher.Constraint("Coincident", 4, 3, 3, 3))
sketch9.addConstraint(Sketcher.Constraint("Coincident", 9, 3, 8, 3))
sketch9.addConstraint(Sketcher.Constraint("Coincident", 14, 3, 13, 3))
sketch9.addConstraint(Sketcher.Constraint("Equal", 3, 8))
sketch9.addConstraint(Sketcher.Constraint("Equal", 4, 9))
sketch9.addConstraint(Sketcher.Constraint("Equal", 8, 13))
sketch9.addConstraint(Sketcher.Constraint("Equal", 9, 14))
sketch9.addConstraint(Sketcher.Constraint("Symmetric", 8, 3, 13, 3, -1, 1))
sketch9.addConstraint(Sketcher.Constraint("Symmetric", 3, 3, 8, 3, -2))
sketch9.addConstraint(Sketcher.Constraint("Vertical", 1, 2, 10, 2))
sketch9.addConstraint(Sketcher.Constraint("Equal", 2, 5))
sketch9.addConstraint(Sketcher.Constraint("Diameter", 4, Q("1.8 mm")))
sketch9.addConstraint(Sketcher.Constraint("Radius", 3, Q("1.9 mm")))
sketch9.addConstraint(Sketcher.Constraint("DistanceX", 0, 2, 0, 1, Q("2.9 mm")))
sketch9.addConstraint(Sketcher.Constraint("DistanceX", 3, 3, 8, 3, Q("35 mm")))
sketch9.addConstraint(Sketcher.Constraint("DistanceY", 13, 3, 3, 3, Q("35 mm")))
pad5 = body.newObject("PartDesign::Pad", "Pad004")
pad5.Profile = sketch9
pad5.Length = 6.2

sketch10 = body.newObject("Sketcher::SketchObject", "Sketch009")
sketch10.AttachmentSupport = (doc.getObject("XZ_Plane"), [""])
sketch10.MapMode = "FlatFace"
sketch10.AttachmentOffset = App.Placement(V(0, 0, 28.4), App.Rotation())
sketch10.addGeometry(Part.LineSegment(V(-4.5, 9.3, 0), V(-4.5, 13.1, 0)), False)
sketch10.addGeometry(Part.LineSegment(V(-4.5, 13.1, 0), V(4.5, 13.1, 0)), False)
sketch10.addGeometry(Part.LineSegment(V(4.5, 13.1, 0), V(4.5, 9.3, 0)), False)
sketch10.addGeometry(Part.LineSegment(V(4.5, 9.3, 0), V(-4.5, 9.3, 0)), False)
sketch10.addConstraint(Sketcher.Constraint("Coincident", 0, 2, 1, 1))
sketch10.addConstraint(Sketcher.Constraint("Coincident", 1, 2, 2, 1))
sketch10.addConstraint(Sketcher.Constraint("Coincident", 2, 2, 3, 1))
sketch10.addConstraint(Sketcher.Constraint("Coincident", 3, 2, 0, 1))
sketch10.addConstraint(Sketcher.Constraint("Vertical", 0))
sketch10.addConstraint(Sketcher.Constraint("Horizontal", 1))
sketch10.addConstraint(Sketcher.Constraint("Vertical", 2))
sketch10.addConstraint(Sketcher.Constraint("Horizontal", 3))
sketch10.addConstraint(Sketcher.Constraint("DistanceX", 1, 1, 1, 2, Q("9 mm")))
sketch10.addConstraint(Sketcher.Constraint("DistanceY", 0, 1, 0, 2, Q("3.8 mm")))
sketch10.addConstraint(Sketcher.Constraint("DistanceX", 0, 2, -1, 1, Q("4.5 mm")))
sketch10.addConstraint(Sketcher.Constraint("DistanceY", -1, 1, 0, 2, Q("13.1 mm")))
pocket5 = body.newObject("PartDesign::Pocket", "Pocket004")
pocket5.Profile = sketch10
pocket5.Type = "ThroughAll"
pocket5.Reversed = True

sketch11 = body.newObject("Sketcher::SketchObject", "Sketch010")
sketch11.AttachmentSupport = (doc.getObject("XY_Plane"), [""])
sketch11.MapMode = "FlatFace"
sketch11.addGeometry(Part.LineSegment(V(19, 7.5, 0), V(19, -7.5, 0)), False)
sketch11.addGeometry(Part.LineSegment(V(19, -7.5, 0), V(-19, -7.5, 0)), False)
sketch11.addGeometry(Part.LineSegment(V(-19, -7.5, 0), V(-19, 7.5, 0)), False)
sketch11.addGeometry(Part.LineSegment(V(-19, 7.5, 0), V(19, 7.5, 0)), False)
sketch11.addConstraint(Sketcher.Constraint("Coincident", 0, 2, 1, 1))
sketch11.addConstraint(Sketcher.Constraint("Coincident", 1, 2, 2, 1))
sketch11.addConstraint(Sketcher.Constraint("Coincident", 2, 2, 3, 1))
sketch11.addConstraint(Sketcher.Constraint("Coincident", 3, 2, 0, 1))
sketch11.addConstraint(Sketcher.Constraint("Vertical", 0))
sketch11.addConstraint(Sketcher.Constraint("Horizontal", 1))
sketch11.addConstraint(Sketcher.Constraint("Vertical", 2))
sketch11.addConstraint(Sketcher.Constraint("Horizontal", 3))
sketch11.addConstraint(Sketcher.Constraint("Symmetric", 0, 2, 2, 2, -1, 1))
sketch11.addConstraint(Sketcher.Constraint("DistanceX", 1, 2, 1, 1, Q("38 mm")))
sketch11.addConstraint(Sketcher.Constraint("DistanceY", 0, 2, 0, 1, Q("15 mm")))
pocket6 = body.newObject("PartDesign::Pocket", "Pocket005")
pocket6.Profile = sketch11
pocket6.Length = 2
pocket6.Reversed = True

doc.recompute()
